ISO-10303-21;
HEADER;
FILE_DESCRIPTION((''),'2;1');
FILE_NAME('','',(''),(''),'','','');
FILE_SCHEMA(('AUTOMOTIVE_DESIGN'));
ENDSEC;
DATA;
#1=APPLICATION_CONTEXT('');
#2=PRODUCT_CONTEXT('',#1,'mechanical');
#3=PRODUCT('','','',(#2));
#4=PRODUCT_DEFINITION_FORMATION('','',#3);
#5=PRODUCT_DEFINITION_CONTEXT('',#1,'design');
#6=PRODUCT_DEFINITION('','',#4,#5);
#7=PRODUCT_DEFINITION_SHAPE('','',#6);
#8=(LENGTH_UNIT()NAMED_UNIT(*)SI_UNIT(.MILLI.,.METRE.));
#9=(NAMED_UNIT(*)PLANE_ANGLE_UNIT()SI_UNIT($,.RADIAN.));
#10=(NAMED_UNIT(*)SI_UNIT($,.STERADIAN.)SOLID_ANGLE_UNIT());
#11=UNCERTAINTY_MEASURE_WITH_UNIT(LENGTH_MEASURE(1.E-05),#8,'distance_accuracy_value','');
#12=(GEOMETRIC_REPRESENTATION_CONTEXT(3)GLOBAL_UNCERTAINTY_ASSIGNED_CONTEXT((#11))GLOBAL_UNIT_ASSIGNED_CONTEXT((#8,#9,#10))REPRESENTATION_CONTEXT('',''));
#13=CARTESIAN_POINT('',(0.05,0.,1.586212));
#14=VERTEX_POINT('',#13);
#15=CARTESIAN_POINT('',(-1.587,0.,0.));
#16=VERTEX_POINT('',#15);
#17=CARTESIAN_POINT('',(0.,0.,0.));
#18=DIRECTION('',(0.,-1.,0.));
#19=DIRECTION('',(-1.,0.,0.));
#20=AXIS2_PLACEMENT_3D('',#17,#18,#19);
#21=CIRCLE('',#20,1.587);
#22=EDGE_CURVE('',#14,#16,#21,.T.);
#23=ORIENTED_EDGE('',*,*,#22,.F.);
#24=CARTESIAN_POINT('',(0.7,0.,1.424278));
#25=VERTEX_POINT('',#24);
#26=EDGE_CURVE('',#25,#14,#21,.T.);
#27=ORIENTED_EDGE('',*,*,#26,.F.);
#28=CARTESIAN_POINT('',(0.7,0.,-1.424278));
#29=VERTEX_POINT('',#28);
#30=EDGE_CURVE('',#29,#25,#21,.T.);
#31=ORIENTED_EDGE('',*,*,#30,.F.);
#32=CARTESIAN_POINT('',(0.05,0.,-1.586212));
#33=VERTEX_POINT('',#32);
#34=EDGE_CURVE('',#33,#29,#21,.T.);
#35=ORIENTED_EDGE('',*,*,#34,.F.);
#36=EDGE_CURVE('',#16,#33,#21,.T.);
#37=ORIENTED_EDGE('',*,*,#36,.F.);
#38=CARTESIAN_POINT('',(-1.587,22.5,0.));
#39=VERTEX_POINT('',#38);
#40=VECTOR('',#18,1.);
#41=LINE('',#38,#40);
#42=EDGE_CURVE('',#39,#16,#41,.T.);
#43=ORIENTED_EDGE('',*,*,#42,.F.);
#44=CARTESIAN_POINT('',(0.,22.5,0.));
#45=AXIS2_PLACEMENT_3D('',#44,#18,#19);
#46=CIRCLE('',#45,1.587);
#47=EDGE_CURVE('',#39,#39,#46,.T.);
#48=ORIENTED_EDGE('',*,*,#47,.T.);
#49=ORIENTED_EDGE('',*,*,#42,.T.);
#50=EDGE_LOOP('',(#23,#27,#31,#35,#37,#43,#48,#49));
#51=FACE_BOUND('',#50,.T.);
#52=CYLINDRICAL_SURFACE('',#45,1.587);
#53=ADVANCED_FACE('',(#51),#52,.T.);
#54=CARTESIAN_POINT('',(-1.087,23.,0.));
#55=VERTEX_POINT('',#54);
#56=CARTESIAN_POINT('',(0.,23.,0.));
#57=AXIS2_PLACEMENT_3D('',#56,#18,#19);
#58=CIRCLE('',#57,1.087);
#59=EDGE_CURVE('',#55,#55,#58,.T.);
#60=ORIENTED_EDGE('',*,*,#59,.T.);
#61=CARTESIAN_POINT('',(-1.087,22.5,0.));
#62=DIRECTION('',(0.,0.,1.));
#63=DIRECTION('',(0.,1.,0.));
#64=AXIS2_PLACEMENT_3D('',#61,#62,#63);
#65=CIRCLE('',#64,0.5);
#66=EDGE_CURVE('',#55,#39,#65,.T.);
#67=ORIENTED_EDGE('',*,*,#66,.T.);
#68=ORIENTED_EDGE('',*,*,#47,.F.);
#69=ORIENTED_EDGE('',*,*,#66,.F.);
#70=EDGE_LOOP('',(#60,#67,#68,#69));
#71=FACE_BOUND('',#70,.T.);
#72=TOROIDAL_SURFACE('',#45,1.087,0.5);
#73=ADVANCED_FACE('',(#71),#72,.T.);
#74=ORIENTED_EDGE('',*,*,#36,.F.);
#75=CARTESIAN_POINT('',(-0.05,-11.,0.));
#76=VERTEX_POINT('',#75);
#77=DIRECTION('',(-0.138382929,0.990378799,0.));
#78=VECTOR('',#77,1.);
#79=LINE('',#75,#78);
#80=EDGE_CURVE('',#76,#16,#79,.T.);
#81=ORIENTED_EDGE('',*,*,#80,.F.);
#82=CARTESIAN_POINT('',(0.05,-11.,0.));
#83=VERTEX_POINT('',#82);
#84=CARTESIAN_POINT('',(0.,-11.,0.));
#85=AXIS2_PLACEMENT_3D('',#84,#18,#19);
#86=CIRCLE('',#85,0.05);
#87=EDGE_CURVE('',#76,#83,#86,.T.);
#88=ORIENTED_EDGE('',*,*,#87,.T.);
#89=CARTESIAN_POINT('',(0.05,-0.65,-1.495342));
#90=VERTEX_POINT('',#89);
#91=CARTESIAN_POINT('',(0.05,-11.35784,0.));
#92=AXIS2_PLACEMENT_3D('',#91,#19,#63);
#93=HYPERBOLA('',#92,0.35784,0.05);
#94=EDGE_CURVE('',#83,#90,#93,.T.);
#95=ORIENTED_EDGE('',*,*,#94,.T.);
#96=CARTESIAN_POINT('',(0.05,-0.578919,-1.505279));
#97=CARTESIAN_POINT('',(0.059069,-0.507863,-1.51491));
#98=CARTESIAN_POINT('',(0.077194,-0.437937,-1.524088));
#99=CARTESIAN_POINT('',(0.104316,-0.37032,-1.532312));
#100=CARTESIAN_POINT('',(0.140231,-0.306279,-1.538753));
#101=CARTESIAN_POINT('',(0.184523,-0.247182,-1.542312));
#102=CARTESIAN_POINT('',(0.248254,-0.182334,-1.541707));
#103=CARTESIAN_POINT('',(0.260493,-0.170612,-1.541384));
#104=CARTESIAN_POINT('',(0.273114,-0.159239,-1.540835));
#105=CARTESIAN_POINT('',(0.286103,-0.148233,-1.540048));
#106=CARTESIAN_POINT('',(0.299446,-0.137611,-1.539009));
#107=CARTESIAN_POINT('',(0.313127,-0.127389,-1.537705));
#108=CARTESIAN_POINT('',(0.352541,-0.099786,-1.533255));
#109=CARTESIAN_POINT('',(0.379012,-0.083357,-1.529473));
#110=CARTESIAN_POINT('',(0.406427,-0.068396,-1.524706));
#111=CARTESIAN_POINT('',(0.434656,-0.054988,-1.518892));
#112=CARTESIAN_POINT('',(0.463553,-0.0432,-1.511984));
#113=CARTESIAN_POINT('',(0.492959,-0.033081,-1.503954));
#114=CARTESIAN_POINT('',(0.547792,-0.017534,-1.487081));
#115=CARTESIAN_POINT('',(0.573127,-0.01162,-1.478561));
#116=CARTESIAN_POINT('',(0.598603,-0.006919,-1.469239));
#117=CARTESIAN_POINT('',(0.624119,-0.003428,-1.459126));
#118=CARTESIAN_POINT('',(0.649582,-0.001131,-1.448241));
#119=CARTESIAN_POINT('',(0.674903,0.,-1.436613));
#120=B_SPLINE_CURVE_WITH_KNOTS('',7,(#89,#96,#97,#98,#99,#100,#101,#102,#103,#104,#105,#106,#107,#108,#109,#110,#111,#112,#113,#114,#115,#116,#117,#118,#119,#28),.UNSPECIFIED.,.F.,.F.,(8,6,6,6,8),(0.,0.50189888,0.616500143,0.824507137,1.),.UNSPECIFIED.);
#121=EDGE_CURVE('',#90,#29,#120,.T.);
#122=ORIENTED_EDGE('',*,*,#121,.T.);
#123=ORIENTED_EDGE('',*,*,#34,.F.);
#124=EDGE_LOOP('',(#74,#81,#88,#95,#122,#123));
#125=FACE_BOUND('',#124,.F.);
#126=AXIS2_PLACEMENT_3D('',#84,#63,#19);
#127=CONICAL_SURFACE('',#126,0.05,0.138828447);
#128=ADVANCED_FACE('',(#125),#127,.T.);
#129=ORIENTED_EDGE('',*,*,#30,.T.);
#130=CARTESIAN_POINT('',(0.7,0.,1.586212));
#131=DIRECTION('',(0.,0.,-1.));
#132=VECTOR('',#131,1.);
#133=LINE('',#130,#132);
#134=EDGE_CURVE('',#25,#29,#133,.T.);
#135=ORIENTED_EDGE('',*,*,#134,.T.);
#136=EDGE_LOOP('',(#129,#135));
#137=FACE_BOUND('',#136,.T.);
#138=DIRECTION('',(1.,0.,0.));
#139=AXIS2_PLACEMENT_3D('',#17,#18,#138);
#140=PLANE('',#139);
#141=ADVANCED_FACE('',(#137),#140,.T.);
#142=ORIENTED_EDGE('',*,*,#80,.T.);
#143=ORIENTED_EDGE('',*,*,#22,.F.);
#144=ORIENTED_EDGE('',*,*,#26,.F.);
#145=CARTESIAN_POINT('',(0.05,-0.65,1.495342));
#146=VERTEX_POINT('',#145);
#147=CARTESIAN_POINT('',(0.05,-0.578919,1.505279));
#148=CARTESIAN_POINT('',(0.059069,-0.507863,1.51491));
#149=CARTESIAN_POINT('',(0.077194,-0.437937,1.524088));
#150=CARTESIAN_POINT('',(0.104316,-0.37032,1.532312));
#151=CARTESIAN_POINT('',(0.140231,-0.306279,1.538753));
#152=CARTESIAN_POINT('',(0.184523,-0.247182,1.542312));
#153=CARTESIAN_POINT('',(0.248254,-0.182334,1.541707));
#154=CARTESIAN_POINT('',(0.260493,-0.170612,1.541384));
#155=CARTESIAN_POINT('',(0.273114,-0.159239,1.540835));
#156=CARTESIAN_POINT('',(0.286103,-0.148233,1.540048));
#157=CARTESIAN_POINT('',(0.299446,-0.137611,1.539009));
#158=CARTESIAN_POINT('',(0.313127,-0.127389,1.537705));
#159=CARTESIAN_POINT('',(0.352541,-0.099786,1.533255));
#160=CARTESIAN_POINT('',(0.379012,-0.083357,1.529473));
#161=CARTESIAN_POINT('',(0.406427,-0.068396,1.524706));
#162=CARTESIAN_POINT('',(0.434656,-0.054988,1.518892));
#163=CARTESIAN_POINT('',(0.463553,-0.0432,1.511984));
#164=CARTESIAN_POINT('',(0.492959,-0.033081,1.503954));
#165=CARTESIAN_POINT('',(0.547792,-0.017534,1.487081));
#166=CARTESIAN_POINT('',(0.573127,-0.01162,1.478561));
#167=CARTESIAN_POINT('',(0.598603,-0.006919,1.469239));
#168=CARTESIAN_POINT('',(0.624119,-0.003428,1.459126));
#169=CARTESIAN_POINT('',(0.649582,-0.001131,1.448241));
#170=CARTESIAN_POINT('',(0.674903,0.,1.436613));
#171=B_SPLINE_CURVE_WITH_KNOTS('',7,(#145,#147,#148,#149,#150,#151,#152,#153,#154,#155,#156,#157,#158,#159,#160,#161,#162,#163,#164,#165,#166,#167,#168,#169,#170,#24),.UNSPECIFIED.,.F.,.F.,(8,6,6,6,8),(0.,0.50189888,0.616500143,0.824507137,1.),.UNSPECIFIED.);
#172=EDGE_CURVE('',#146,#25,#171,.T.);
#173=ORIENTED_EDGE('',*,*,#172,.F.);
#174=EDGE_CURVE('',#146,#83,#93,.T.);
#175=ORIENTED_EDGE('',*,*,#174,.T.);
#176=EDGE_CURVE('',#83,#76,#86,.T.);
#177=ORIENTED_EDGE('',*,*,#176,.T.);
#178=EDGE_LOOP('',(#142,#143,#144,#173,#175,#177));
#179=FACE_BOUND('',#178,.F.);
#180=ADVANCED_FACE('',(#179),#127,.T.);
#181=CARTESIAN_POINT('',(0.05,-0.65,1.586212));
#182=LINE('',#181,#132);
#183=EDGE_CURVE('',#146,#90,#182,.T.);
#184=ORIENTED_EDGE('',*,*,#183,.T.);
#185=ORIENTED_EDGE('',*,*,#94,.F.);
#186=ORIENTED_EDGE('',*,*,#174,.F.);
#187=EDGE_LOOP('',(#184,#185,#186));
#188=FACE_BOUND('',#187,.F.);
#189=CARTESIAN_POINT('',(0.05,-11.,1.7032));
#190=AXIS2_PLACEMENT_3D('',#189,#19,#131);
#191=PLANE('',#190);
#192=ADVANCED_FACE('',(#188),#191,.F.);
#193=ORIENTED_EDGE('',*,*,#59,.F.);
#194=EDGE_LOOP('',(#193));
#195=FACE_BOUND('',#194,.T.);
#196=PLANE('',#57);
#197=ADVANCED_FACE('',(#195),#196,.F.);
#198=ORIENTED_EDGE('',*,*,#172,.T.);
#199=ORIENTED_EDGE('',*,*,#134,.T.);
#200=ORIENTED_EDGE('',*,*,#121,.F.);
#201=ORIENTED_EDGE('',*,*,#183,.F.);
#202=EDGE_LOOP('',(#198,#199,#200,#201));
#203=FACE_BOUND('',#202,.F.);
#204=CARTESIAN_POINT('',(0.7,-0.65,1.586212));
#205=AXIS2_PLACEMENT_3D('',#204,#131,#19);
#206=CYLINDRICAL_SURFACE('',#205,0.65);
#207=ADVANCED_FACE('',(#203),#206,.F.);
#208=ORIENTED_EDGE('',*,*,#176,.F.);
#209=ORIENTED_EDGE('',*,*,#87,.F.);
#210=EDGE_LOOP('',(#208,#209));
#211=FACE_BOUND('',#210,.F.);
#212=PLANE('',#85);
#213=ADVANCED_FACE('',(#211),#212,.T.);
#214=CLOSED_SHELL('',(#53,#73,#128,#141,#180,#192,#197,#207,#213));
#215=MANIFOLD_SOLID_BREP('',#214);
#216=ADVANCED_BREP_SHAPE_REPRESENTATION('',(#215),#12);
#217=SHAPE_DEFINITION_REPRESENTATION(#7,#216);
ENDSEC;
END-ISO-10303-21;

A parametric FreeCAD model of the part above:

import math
import FreeCAD as App
import Part
import Sketcher

V = App.Vector


def edges_at(feature, points):
    """Names of the edges that pass closest to the given points."""
    edges = feature.Shape.Edges
    near = lambda p: min(range(len(edges)), key=lambda i: edges[i].distToShape(Part.Vertex(*p))[0])
    return sorted({f"Edge{near(p) + 1}" for p in points})

doc = App.newDocument("Part")
params = doc.addObject("Spreadsheet::Sheet", "Params")
for row, (alias, value) in enumerate([
    ("sketch1_radius", "0.5 mm"),
    ("sketch1_width", "0.05 mm"),
    ("sketch1_height", "34 mm"),
    ("sketch1_height2", "22.5 mm"),
    ("revolution_angle", "360 deg"),
    ("pocket1_length", "11 mm"),
    ("fillet_radius", "0.65 mm"),
], start=1):
    params.set(f"A{row}", alias)
    params.set(f"B{row}", "=" + value)
    params.setAlias(f"B{row}", alias)

body = doc.addObject("PartDesign::Body", "Body")

# Sketch on XY plane
sketch1 = doc.addObject("Sketcher::SketchObject", "Sketch")
body.addObject(sketch1)
sketch1.AttachmentSupport = (doc.XY_Plane, [""])
sketch1.MapMode = "FlatFace"
sketch1.addGeometry([
    Part.LineSegment(V(0, -11, 0), V(0, 23, 0)),  # 0
    Part.LineSegment(V(0, 23, 0), V(-1.09, 23, 0)),  # 1
    Part.ArcOfCircle(Part.Circle(V(-1.09, 22.5, 0), V(0, 0, 1), 0.5), math.radians(90), math.radians(180)),  # 2
    Part.LineSegment(V(-1.59, 22.5, 0), V(-1.59, 0, 0)),  # 3
    Part.LineSegment(V(-1.59, 0, 0), V(-0.05, -11, 0)),  # 4
    Part.LineSegment(V(-0.05, -11, 0), V(0, -11, 0)),  # 5
], False)
sketch1.addConstraint([
    Sketcher.Constraint("Coincident", 0, 2, 1, 1),
    Sketcher.Constraint("Tangent", 1, 2, 2, 1),
    Sketcher.Constraint("Tangent", 2, 2, 3, 1),
    Sketcher.Constraint("Coincident", 3, 2, 4, 1),
    Sketcher.Constraint("Coincident", 4, 2, 5, 1),
    Sketcher.Constraint("Coincident", 5, 2, 0, 1),
    Sketcher.Constraint("Vertical", 0),
    Sketcher.Constraint("Horizontal", 1),
    Sketcher.Constraint("Vertical", 3),
    Sketcher.Constraint("Horizontal", 5),
    Sketcher.Constraint("PointOnObject", 0, 2, -2),
    Sketcher.Constraint("PointOnObject", 3, 2, -1),
    Sketcher.Constraint("Radius", 2, 0.5),
    Sketcher.Constraint("DistanceX", 5, 1, 5, 2, 0.05),
    Sketcher.Constraint("DistanceY", 0, 1, 0, 2, 34.0),
    Sketcher.Constraint("DistanceY", 3, 2, 3, 1, 22.5),
    Sketcher.Constraint("DistanceX", 2, 2, -1, 1, 1.587),
])
sketch1.setExpression("Constraints[12]", "Params.sketch1_radius")
sketch1.setExpression("Constraints[13]", "Params.sketch1_width")
sketch1.setExpression("Constraints[14]", "Params.sketch1_height")
sketch1.setExpression("Constraints[15]", "Params.sketch1_height2")
revolution = doc.addObject("PartDesign::Revolution", "Revolution")
body.addObject(revolution)
revolution.Profile = sketch1
revolution.ReferenceAxis = (sketch1, ["V_Axis"])
revolution.setExpression("Angle", "Params.revolution_angle")

# Sketch on XZ plane
sketch2 = doc.addObject("Sketcher::SketchObject", "Sketch001")
body.addObject(sketch2)
sketch2.AttachmentSupport = (doc.XZ_Plane, [""])
sketch2.MapMode = "FlatFace"
sketch2.AttachmentOffset = App.Placement(V(0, 0, 11), App.Rotation())
sketch2.addGeometry([
    Part.LineSegment(V(1.6, 1.7, 0), V(0.1, 1.7, 0)),
    Part.LineSegment(V(0.1, 1.7, 0), V(0.1, -1.9, 0)),
    Part.LineSegment(V(0.1, -1.9, 0), V(1.6, -1.9, 0)),
    Part.LineSegment(V(1.6, -1.9, 0), V(1.6, 1.7, 0)),
], False)
sketch2.addConstraint([
    Sketcher.Constraint("Coincident", 0, 2, 1, 1),
    Sketcher.Constraint("Coincident", 1, 2, 2, 1),
    Sketcher.Constraint("Coincident", 2, 2, 3, 1),
    Sketcher.Constraint("Coincident", 3, 2, 0, 1),
    Sketcher.Constraint("Horizontal", 0),
    Sketcher.Constraint("Vertical", 1),
    Sketcher.Constraint("Horizontal", 2),
    Sketcher.Constraint("Vertical", 3),
    Sketcher.Constraint("DistanceX", -1, 1, 0, 2, 0.05),
    Sketcher.Constraint("DistanceX", 0, 2, 0, 1, 1.554),
    Sketcher.Constraint("DistanceY", 1, 2, 1, 1, 3.5902),
    Sketcher.Constraint("DistanceY", 1, 2, -1, 1, 1.887),
])
pocket1 = doc.addObject("PartDesign::Pocket", "Pocket")
body.addObject(pocket1)
pocket1.Profile = sketch2
pocket1.setExpression("Length", "Params.pocket1_length")
doc.recompute()

fillet = doc.addObject("PartDesign::Fillet", "Fillet")
body.addObject(fillet)
fillet.Base = (pocket1, edges_at(pocket1, [(0.05, 0, 0)]))
fillet.setExpression("Radius", "Params.fillet_radius")

doc.recompute()
